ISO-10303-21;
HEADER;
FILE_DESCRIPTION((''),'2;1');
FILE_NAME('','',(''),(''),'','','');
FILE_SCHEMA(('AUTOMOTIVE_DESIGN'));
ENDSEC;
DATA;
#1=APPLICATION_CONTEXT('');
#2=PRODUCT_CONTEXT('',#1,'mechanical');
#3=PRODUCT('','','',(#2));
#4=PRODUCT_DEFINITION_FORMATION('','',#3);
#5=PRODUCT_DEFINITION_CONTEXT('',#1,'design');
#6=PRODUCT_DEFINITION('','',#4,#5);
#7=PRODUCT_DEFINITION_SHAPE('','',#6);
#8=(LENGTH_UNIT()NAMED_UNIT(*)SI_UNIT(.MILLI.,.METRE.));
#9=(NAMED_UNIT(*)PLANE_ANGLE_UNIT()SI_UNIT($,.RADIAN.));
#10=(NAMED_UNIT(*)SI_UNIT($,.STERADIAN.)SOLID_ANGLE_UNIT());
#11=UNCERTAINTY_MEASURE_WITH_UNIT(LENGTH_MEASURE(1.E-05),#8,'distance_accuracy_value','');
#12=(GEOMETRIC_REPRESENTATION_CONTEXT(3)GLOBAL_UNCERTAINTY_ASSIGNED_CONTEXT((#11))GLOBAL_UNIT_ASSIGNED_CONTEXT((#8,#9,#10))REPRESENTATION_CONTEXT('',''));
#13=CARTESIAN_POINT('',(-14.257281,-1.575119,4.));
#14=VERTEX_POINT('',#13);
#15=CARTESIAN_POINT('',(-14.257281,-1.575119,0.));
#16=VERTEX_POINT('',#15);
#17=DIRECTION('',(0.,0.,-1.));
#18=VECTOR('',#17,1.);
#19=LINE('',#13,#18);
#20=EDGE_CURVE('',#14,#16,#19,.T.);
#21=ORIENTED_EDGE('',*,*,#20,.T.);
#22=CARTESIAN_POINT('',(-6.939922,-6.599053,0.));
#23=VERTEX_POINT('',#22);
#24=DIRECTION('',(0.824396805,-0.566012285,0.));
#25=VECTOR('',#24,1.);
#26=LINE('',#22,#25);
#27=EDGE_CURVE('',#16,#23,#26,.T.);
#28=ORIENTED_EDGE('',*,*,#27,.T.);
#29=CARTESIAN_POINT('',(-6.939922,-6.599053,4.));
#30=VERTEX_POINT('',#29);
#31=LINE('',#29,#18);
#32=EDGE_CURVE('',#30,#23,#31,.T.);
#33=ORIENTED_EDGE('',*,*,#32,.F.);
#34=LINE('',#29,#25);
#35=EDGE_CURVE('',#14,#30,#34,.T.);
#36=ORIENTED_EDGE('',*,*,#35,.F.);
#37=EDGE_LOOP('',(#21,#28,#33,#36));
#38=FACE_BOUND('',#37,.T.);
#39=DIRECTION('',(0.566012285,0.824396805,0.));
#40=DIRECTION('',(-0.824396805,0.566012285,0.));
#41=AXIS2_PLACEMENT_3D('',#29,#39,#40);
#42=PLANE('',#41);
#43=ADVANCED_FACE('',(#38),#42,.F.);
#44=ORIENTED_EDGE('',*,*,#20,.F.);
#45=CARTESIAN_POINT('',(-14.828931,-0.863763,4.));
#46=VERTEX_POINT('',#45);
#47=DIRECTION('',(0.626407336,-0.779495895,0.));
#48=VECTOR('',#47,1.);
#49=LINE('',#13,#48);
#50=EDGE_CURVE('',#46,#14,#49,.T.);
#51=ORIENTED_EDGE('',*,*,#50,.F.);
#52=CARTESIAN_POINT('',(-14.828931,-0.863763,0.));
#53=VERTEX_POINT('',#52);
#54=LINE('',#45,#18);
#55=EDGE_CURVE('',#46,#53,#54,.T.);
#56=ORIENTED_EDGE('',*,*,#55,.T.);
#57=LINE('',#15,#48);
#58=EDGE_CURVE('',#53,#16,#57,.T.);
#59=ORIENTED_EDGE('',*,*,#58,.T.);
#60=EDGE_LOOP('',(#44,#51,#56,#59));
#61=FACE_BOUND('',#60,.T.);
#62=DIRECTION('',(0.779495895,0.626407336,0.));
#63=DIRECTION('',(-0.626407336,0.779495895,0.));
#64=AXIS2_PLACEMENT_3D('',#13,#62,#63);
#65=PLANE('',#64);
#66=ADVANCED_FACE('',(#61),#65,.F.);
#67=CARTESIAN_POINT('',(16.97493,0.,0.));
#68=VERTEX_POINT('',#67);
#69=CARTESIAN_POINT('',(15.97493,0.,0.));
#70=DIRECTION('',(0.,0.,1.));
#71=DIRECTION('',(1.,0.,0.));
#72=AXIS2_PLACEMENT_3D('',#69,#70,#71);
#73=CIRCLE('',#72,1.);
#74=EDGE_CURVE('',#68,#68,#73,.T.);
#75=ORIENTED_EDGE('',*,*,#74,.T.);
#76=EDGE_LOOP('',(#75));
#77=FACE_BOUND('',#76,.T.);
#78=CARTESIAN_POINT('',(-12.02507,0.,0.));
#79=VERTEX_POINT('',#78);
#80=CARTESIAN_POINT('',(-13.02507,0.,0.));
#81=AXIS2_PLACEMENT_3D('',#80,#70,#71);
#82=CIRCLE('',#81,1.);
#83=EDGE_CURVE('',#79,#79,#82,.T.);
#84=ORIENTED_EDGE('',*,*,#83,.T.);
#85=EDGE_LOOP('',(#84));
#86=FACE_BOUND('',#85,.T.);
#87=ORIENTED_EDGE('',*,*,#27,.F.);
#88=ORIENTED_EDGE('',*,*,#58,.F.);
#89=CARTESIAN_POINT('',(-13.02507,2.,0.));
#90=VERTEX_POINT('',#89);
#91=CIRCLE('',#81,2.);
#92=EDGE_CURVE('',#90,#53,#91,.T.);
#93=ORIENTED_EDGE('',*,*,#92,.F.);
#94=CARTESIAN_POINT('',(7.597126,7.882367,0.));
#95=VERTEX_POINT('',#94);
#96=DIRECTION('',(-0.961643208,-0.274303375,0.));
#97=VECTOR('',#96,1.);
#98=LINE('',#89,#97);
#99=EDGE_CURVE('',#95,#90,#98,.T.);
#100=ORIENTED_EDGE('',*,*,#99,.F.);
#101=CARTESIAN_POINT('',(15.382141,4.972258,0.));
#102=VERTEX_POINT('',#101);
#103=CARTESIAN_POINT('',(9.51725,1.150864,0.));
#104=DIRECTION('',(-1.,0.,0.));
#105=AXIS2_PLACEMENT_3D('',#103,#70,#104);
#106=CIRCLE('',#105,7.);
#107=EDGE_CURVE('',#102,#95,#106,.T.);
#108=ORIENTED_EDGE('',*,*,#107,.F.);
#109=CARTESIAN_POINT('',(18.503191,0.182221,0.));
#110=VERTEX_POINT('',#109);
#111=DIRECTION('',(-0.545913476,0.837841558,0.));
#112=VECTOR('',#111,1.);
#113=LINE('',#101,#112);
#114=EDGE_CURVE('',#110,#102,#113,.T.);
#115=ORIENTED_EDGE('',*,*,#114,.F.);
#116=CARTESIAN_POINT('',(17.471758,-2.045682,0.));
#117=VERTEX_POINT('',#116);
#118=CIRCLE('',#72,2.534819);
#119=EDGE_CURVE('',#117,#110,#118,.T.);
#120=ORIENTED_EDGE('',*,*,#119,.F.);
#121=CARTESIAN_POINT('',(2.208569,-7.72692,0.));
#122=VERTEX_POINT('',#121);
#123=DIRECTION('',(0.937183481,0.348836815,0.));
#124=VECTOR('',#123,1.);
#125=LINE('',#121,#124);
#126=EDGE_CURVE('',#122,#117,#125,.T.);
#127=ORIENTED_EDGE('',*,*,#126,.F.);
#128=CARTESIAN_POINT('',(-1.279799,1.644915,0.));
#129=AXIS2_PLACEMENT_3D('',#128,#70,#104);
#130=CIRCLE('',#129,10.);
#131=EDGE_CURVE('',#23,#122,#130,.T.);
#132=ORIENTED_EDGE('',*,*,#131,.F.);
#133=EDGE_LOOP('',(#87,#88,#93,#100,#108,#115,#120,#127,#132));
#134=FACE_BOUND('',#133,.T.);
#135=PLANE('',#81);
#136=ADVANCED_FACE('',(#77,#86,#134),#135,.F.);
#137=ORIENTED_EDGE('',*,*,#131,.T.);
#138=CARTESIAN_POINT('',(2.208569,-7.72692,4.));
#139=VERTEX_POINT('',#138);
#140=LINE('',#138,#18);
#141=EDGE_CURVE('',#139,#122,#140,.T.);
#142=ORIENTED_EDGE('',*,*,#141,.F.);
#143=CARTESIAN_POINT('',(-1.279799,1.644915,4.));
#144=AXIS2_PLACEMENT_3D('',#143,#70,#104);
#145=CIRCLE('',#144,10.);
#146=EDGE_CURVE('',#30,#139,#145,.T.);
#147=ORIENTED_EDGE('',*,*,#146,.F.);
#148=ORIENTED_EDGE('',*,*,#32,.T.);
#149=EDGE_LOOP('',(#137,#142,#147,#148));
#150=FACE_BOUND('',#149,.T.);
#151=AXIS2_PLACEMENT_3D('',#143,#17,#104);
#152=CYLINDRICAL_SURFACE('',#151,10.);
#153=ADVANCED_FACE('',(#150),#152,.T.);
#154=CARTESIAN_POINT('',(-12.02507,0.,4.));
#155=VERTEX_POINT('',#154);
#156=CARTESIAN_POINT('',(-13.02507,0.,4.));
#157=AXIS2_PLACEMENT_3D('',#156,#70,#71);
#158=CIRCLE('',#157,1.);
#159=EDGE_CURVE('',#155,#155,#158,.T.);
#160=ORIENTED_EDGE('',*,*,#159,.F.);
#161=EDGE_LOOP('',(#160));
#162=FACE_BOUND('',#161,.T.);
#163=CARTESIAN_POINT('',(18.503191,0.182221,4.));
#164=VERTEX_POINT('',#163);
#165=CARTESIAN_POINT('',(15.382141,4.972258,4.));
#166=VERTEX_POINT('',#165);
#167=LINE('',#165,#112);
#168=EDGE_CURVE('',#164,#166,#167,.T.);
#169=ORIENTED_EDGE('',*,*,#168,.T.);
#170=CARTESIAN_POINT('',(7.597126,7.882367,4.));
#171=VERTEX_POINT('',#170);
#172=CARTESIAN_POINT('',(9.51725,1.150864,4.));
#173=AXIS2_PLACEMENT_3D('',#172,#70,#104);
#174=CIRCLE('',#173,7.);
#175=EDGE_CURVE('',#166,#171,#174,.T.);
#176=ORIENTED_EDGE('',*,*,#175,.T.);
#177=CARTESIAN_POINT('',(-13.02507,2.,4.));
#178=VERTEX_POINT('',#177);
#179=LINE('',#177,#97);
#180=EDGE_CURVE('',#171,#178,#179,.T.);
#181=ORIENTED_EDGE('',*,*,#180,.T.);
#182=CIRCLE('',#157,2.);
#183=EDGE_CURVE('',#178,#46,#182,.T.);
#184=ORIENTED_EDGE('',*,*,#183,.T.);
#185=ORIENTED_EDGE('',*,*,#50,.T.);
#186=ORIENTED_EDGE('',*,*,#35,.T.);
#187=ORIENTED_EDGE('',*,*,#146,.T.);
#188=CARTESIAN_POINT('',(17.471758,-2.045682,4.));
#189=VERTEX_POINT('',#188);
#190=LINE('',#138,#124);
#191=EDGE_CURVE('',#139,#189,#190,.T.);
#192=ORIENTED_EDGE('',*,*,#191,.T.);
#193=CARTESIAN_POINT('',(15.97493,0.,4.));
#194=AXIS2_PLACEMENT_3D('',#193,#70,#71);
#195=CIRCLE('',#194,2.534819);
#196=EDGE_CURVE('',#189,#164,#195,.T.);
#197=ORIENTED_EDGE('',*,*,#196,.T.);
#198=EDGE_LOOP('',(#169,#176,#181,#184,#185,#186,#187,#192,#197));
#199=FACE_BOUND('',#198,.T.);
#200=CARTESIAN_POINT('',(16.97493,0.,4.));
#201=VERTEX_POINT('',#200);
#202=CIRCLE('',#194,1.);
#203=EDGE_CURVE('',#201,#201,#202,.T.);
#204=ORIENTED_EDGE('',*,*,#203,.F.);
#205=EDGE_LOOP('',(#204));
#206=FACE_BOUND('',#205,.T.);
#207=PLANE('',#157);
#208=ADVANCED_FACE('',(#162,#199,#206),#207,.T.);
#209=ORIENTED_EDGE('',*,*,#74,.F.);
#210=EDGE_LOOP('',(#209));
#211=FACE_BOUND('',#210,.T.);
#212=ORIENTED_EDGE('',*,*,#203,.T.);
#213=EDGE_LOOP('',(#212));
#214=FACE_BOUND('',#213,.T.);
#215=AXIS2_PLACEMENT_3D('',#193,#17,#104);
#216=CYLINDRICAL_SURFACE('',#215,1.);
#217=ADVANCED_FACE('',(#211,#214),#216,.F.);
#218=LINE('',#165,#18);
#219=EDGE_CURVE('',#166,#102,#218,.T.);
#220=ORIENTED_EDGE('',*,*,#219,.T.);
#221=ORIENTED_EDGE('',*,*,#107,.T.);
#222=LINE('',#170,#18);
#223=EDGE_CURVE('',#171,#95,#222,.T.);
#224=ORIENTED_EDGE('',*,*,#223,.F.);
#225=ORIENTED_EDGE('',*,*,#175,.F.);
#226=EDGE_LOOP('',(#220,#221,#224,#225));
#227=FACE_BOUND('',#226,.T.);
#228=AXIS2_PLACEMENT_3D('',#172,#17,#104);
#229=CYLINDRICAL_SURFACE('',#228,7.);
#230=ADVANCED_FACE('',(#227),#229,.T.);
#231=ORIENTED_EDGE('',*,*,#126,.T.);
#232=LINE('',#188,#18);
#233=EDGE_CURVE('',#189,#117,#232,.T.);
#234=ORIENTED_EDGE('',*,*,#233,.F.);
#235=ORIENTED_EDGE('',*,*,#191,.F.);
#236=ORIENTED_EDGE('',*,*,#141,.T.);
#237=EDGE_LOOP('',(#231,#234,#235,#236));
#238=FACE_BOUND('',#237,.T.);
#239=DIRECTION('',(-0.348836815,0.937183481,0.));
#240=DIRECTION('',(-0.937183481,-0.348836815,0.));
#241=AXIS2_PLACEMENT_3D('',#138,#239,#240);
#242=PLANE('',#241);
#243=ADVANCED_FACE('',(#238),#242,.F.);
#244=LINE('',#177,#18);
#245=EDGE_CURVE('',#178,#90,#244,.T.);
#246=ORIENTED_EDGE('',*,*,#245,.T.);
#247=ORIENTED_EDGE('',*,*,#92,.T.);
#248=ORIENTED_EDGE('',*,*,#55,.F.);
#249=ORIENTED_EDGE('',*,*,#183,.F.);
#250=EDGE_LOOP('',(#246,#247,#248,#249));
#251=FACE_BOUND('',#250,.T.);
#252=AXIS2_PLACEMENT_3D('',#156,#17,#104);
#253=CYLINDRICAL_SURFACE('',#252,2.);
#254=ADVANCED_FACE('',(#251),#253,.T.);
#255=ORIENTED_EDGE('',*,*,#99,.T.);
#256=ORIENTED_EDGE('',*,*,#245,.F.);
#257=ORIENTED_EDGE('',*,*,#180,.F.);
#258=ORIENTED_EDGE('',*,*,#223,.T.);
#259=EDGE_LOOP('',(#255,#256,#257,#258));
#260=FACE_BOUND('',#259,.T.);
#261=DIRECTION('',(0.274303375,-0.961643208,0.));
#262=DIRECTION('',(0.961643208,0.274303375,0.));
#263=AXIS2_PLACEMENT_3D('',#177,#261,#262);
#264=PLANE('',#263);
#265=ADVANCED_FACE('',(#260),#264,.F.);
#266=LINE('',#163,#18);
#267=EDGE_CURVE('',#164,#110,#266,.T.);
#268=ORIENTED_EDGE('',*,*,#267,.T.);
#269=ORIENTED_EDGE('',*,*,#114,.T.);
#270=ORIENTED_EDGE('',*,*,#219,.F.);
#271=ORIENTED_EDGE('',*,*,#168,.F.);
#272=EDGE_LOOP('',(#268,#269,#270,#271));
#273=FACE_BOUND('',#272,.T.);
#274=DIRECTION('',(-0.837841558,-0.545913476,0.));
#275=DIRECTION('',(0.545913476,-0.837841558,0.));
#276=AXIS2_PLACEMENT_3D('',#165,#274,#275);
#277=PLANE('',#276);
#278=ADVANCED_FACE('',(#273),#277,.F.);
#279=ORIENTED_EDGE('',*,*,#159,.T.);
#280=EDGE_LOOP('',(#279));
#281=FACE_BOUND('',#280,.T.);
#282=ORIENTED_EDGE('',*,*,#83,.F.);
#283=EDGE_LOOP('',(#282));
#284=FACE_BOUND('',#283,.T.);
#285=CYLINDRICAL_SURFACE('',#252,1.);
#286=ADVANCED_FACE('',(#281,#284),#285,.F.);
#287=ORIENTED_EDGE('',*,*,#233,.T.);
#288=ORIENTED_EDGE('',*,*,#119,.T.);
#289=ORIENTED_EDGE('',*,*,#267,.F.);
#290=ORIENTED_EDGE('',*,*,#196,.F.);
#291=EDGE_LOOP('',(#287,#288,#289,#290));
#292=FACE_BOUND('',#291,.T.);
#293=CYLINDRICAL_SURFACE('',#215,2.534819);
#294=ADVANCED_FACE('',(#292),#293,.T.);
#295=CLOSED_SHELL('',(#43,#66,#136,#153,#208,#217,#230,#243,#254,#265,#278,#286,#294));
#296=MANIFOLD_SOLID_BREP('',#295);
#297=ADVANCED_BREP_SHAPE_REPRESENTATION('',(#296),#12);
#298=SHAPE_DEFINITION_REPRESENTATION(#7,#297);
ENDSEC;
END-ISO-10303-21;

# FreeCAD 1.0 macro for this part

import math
import FreeCAD as App
import Part
import Sketcher
from FreeCAD import Vector
Q = App.Units.Quantity

doc = App.newDocument("Part")
body = doc.addObject("PartDesign::Body", "Body")

sketch1 = body.newObject("Sketcher::SketchObject", "Sketch")
sketch1.AttachmentSupport = (doc.getObject("XY_Plane"), [""])
sketch1.MapMode = "FlatFace"
sketch1.addGeometry(Part.LineSegment(Vector(-14.828931, -0.863763, 0), Vector(-14.257281, -1.575119, 0)), False)
sketch1.addGeometry(Part.LineSegment(Vector(-14.257281, -1.575119, 0), Vector(-6.939922, -6.599053, 0)), False)
sketch1.addGeometry(Part.ArcOfCircle(Part.Circle(Vector(-1.279799, 1.644915, 0), Vector(0, 0, 1), 10), math.radians(-124.472616), math.radians(-69.583814)), False)
sketch1.addGeometry(Part.LineSegment(Vector(2.208569, -7.72692, 0), Vector(17.471758, -2.045682, 0)), False)
sketch1.addGeometry(Part.ArcOfCircle(Part.Circle(Vector(15.97493, 0, 0), Vector(0, 0, 1), 2.534819), math.radians(-53.80703), math.radians(4.122396)), False)
sketch1.addGeometry(Part.LineSegment(Vector(18.503191, 0.182221, 0), Vector(15.382141, 4.972258, 0)), False)
sketch1.addGeometry(Part.ArcOfCircle(Part.Circle(Vector(9.51725, 1.150864, 0), Vector(0, 0, 1), 7), math.radians(33.08711), math.radians(105.920504)), False)
sketch1.addGeometry(Part.LineSegment(Vector(7.597126, 7.882367, 0), Vector(-13.02507, 2, 0)), False)
sketch1.addGeometry(Part.ArcOfCircle(Part.Circle(Vector(-13.02507, 0, 0), Vector(0, 0, 1), 2), math.radians(90), math.radians(205.587011)), False)
sketch1.addGeometry(Part.Circle(Vector(15.97493, 0, 0), Vector(0, 0, 1), 1), False)
sketch1.addGeometry(Part.Circle(Vector(-13.02507, 0, 0), Vector(0, 0, 1), 1), False)
sketch1.addConstraint(Sketcher.Constraint("Coincident", 0, 2, 1, 1))
sketch1.addConstraint(Sketcher.Constraint("Tangent", 1, 2, 2, 1))
sketch1.addConstraint(Sketcher.Constraint("Tangent", 2, 2, 3, 1))
sketch1.addConstraint(Sketcher.Constraint("Coincident", 3, 2, 4, 1))
sketch1.addConstraint(Sketcher.Constraint("Coincident", 4, 2, 5, 1))
sketch1.addConstraint(Sketcher.Constraint("Tangent", 5, 2, 6, 1))
sketch1.addConstraint(Sketcher.Constraint("Tangent", 6, 2, 7, 1))
sketch1.addConstraint(Sketcher.Constraint("Coincident", 7, 2, 8, 1))
sketch1.addConstraint(Sketcher.Constraint("Coincident", 8, 2, 0, 1))
sketch1.addConstraint(Sketcher.Constraint("Coincident", 9, 3, 4, 3))
sketch1.addConstraint(Sketcher.Constraint("Coincident", 10, 3, 8, 3))
sketch1.addConstraint(Sketcher.Constraint("Equal", 9, 10))
sketch1.addConstraint(Sketcher.Constraint("PointOnObject", 4, 3, -1))
sketch1.addConstraint(Sketcher.Constraint("PointOnObject", 8, 3, -1))
sketch1.addConstraint(Sketcher.Constraint("Vertical", 10, 3, 7, 2))
sketch1.addConstraint(Sketcher.Constraint("Diameter", 9, Q("2 mm")))
sketch1.addConstraint(Sketcher.Constraint("Radius", 2, Q("10 mm")))
sketch1.addConstraint(Sketcher.Constraint("Radius", 6, Q("7 mm")))
sketch1.addConstraint(Sketcher.Constraint("Radius", 8, Q("2 mm")))
sketch1.addConstraint(Sketcher.Constraint("DistanceX", 8, 3, 4, 3, Q("29 mm")))
sketch1.addConstraint(Sketcher.Constraint("Radius", 4, Q("2.534819 mm")))
sketch1.addConstraint(Sketcher.Constraint("DistanceX", 2, 3, -1, 1, Q("1.279799 mm")))
sketch1.addConstraint(Sketcher.Constraint("DistanceX", -1, 1, 4, 3, Q("15.97493 mm")))
sketch1.addConstraint(Sketcher.Constraint("DistanceX", -1, 1, 6, 3, Q("9.51725 mm")))
sketch1.addConstraint(Sketcher.Constraint("DistanceX", 0, 2, -1, 1, Q("14.257281 mm")))
sketch1.addConstraint(Sketcher.Constraint("DistanceY", 0, 2, -1, 1, Q("1.575119 mm")))
sketch1.addConstraint(Sketcher.Constraint("DistanceX", 1, 2, -1, 1, Q("6.939922 mm")))
sketch1.addConstraint(Sketcher.Constraint("DistanceX", -1, 1, 2, 2, Q("2.208569 mm")))
sketch1.addConstraint(Sketcher.Constraint("DistanceX", -1, 1, 4, 2, Q("18.503191 mm")))
sketch1.addConstraint(Sketcher.Constraint("DistanceX", -1, 1, 5, 2, Q("15.382141 mm")))
sketch1.addConstraint(Sketcher.Constraint("DistanceX", 8, 2, -1, 1, Q("14.828931 mm")))
pad1 = body.newObject("PartDesign::Pad", "Pad")
pad1.Profile = sketch1
pad1.Length = 4

doc.recompute()
